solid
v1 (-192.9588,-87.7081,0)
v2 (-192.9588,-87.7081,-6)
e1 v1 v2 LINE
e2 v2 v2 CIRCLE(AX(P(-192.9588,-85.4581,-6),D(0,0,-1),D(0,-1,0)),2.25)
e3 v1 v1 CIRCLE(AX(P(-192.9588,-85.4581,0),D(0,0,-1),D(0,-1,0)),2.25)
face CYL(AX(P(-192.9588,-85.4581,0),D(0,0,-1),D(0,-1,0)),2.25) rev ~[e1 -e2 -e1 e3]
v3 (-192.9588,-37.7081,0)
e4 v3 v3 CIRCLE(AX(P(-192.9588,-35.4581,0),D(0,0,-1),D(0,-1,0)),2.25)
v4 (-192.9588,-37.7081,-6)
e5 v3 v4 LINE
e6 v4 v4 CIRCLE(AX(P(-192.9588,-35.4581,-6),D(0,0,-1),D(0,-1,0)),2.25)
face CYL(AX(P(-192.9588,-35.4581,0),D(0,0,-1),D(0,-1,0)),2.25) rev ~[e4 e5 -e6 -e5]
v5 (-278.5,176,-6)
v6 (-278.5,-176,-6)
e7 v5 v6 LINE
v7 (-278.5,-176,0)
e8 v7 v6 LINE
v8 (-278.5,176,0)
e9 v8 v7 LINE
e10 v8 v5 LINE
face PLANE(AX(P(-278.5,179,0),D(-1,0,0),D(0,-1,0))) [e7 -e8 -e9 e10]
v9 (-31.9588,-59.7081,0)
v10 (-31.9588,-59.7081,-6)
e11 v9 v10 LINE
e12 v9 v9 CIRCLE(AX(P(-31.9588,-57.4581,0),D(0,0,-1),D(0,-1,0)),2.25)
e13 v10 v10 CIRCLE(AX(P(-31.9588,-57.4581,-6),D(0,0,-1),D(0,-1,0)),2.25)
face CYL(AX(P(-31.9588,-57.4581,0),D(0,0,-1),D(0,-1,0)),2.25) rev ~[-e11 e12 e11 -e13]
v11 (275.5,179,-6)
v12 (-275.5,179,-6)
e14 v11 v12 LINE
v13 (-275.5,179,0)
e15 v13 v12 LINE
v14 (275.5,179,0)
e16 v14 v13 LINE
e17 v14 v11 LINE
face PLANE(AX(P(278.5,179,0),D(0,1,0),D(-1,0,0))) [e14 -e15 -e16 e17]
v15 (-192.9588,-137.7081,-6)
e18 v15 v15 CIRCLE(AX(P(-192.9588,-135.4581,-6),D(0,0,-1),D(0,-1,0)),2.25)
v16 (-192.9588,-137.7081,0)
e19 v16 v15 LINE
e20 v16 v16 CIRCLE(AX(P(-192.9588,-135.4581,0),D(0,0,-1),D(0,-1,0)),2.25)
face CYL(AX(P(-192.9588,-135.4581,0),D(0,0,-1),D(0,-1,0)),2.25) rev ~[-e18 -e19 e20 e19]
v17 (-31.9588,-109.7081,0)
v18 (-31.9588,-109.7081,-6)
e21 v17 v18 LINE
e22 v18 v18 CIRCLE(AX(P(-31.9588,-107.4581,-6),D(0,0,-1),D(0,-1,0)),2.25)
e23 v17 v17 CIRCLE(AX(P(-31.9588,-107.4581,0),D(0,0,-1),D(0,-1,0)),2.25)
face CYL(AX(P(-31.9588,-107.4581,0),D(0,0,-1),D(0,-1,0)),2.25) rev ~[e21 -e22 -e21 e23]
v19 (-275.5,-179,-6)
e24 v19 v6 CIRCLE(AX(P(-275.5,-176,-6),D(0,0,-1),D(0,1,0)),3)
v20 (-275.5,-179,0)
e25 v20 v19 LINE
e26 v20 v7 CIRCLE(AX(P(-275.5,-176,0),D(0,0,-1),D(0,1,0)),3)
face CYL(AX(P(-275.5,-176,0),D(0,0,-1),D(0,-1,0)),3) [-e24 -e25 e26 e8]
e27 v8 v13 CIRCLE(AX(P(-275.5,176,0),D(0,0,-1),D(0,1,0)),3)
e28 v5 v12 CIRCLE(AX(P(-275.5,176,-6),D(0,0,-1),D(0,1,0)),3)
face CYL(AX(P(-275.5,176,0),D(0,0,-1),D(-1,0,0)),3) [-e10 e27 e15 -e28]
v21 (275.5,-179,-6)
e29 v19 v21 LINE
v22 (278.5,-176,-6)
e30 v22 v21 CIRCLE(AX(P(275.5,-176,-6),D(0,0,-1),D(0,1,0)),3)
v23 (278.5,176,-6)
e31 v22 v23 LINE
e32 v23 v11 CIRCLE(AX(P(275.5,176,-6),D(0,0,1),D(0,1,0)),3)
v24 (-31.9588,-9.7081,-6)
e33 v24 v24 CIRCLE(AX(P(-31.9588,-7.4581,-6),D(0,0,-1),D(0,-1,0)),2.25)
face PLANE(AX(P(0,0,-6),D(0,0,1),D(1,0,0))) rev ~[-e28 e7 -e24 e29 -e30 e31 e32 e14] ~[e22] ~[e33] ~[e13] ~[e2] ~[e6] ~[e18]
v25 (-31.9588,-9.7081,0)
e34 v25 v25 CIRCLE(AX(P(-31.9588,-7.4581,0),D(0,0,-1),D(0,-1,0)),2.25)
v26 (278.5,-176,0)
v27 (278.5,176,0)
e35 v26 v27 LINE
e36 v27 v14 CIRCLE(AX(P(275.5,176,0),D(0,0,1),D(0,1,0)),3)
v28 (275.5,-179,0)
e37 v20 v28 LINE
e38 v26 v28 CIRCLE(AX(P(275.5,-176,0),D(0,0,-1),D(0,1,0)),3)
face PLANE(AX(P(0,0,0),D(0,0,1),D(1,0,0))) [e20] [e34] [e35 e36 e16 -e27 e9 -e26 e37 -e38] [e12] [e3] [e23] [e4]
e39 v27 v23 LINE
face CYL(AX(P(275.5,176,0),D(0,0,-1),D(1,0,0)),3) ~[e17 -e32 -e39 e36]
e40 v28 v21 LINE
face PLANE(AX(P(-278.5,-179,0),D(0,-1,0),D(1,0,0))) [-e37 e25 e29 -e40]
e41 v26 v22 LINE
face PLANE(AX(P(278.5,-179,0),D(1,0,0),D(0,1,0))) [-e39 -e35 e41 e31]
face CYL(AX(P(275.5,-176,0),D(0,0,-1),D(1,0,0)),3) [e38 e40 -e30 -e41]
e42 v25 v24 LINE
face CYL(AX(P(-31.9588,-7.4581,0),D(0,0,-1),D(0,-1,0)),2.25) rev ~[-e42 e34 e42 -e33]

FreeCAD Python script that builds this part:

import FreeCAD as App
import Part
import Sketcher

V = App.Vector
Q = App.Units.Quantity


def edges_at(feature, points):
    """Names of the edges that pass closest to the given points."""
    edges = feature.Shape.Edges
    near = lambda p: min(range(len(edges)), key=lambda i: edges[i].distToShape(Part.Vertex(*p))[0])
    return sorted({f"Edge{near(p) + 1}" for p in points})


def add_polygon(sketch, points):
    """Adds a closed chain of lines whose ends are joined by coincident constraints."""
    first, n = sketch.GeometryCount, len(points)
    for a, b in zip(points, points[1:] + points[:1]):
        sketch.addGeometry(Part.LineSegment(App.Vector(*a, 0), App.Vector(*b, 0)), False)
    for i in range(n):
        sketch.addConstraint(Sketcher.Constraint("Coincident", first + i, 2, first + (i + 1) % n, 1))

doc = App.newDocument("Part")
body = doc.addObject("PartDesign::Body", "Body")

# Sketch on XY plane
sketch1 = body.newObject("Sketcher::SketchObject", "Sketch")
sketch1.AttachmentSupport = (doc.getObject("XY_Plane"), [""])
sketch1.MapMode = "FlatFace"
add_polygon(sketch1, [(278, -179), (278, 179), (-278, 179), (-278, -179)])  # lines 0-3
sketch1.addConstraint(Sketcher.Constraint("Vertical", 0))
sketch1.addConstraint(Sketcher.Constraint("Horizontal", 1))
sketch1.addConstraint(Sketcher.Constraint("Vertical", 2))
sketch1.addConstraint(Sketcher.Constraint("Horizontal", 3))
sketch1.addConstraint(Sketcher.Constraint("Symmetric", 0, 2, 2, 2, -1, 1))
sketch1.addConstraint(Sketcher.Constraint("DistanceX", 1, 2, 1, 1, Q("557 mm")))
sketch1.addConstraint(Sketcher.Constraint("DistanceY", 0, 1, 0, 2, Q("358 mm")))
pad1 = body.newObject("PartDesign::Pad", "Pad")
pad1.Profile = sketch1
pad1.Length = 6
pad1.Reversed = True
doc.recompute()

fillet = body.newObject("PartDesign::Fillet", "Fillet")
fillet.Base = (pad1, edges_at(pad1, [
    (-278.5, -179, -3),
    (-278.5, 179, -3),
    (278.5, -179, -3),
    (278.5, 179, -3),
]))
fillet.Radius = 3

# Sketch on XY plane
sketch2 = body.newObject("Sketcher::SketchObject", "Sketch001")
sketch2.AttachmentSupport = (doc.getObject("XY_Plane"), [""])
sketch2.MapMode = "FlatFace"
sketch2.addGeometry(Part.Circle(V(-193, -135.5, 0), V(0, 0, 1), 2.2), False)
sketch2.addGeometry(Part.Circle(V(-32, -107.5, 0), V(0, 0, 1), 2.2), False)
sketch2.addGeometry(Part.Circle(V(-193, -85.5, 0), V(0, 0, 1), 2.2), False)
sketch2.addGeometry(Part.Circle(V(-32, -7.5, 0), V(0, 0, 1), 2.2), False)
sketch2.addGeometry(Part.Circle(V(-32, -57.5, 0), V(0, 0, 1), 2.2), False)
sketch2.addGeometry(Part.Circle(V(-193, -35.5, 0), V(0, 0, 1), 2.2), False)
sketch2.addConstraint(Sketcher.Constraint("Equal", 0, 1))
sketch2.addConstraint(Sketcher.Constraint("Equal", 1, 2))
sketch2.addConstraint(Sketcher.Constraint("Equal", 2, 3))
sketch2.addConstraint(Sketcher.Constraint("Equal", 3, 4))
sketch2.addConstraint(Sketcher.Constraint("Equal", 4, 5))
sketch2.addConstraint(Sketcher.Constraint("Vertical", 0, 3, 2, 3))
sketch2.addConstraint(Sketcher.Constraint("Vertical", 1, 3, 3, 3))
sketch2.addConstraint(Sketcher.Constraint("Vertical", 3, 3, 4, 3))
sketch2.addConstraint(Sketcher.Constraint("Vertical", 2, 3, 5, 3))
sketch2.addConstraint(Sketcher.Constraint("Diameter", 0, Q("4.5 mm")))
sketch2.addConstraint(Sketcher.Constraint("DistanceX", 0, 3, 1, 3, Q("161 mm")))
sketch2.addConstraint(Sketcher.Constraint("DistanceY", 0, 3, 1, 3, Q("28 mm")))
sketch2.addConstraint(Sketcher.Constraint("DistanceY", 0, 3, 2, 3, Q("50 mm")))
sketch2.addConstraint(Sketcher.Constraint("DistanceY", 1, 3, 3, 3, Q("100 mm")))
sketch2.addConstraint(Sketcher.Constraint("DistanceY", 1, 3, 4, 3, Q("50 mm")))
sketch2.addConstraint(Sketcher.Constraint("DistanceY", 2, 3, 5, 3, Q("50 mm")))
sketch2.addConstraint(Sketcher.Constraint("DistanceY", 0, 3, -1, 1, Q("135.458 mm")))
sketch2.addConstraint(Sketcher.Constraint("DistanceX", 0, 3, -1, 1, Q("192.9588 mm")))
doc.recompute()
hole = body.newObject("PartDesign::Hole", "Hole")
hole.Profile = sketch2
hole.ThreadType = "None"
hole.Diameter = 4.5
hole.DepthType = "ThroughAll"

doc.recompute()
